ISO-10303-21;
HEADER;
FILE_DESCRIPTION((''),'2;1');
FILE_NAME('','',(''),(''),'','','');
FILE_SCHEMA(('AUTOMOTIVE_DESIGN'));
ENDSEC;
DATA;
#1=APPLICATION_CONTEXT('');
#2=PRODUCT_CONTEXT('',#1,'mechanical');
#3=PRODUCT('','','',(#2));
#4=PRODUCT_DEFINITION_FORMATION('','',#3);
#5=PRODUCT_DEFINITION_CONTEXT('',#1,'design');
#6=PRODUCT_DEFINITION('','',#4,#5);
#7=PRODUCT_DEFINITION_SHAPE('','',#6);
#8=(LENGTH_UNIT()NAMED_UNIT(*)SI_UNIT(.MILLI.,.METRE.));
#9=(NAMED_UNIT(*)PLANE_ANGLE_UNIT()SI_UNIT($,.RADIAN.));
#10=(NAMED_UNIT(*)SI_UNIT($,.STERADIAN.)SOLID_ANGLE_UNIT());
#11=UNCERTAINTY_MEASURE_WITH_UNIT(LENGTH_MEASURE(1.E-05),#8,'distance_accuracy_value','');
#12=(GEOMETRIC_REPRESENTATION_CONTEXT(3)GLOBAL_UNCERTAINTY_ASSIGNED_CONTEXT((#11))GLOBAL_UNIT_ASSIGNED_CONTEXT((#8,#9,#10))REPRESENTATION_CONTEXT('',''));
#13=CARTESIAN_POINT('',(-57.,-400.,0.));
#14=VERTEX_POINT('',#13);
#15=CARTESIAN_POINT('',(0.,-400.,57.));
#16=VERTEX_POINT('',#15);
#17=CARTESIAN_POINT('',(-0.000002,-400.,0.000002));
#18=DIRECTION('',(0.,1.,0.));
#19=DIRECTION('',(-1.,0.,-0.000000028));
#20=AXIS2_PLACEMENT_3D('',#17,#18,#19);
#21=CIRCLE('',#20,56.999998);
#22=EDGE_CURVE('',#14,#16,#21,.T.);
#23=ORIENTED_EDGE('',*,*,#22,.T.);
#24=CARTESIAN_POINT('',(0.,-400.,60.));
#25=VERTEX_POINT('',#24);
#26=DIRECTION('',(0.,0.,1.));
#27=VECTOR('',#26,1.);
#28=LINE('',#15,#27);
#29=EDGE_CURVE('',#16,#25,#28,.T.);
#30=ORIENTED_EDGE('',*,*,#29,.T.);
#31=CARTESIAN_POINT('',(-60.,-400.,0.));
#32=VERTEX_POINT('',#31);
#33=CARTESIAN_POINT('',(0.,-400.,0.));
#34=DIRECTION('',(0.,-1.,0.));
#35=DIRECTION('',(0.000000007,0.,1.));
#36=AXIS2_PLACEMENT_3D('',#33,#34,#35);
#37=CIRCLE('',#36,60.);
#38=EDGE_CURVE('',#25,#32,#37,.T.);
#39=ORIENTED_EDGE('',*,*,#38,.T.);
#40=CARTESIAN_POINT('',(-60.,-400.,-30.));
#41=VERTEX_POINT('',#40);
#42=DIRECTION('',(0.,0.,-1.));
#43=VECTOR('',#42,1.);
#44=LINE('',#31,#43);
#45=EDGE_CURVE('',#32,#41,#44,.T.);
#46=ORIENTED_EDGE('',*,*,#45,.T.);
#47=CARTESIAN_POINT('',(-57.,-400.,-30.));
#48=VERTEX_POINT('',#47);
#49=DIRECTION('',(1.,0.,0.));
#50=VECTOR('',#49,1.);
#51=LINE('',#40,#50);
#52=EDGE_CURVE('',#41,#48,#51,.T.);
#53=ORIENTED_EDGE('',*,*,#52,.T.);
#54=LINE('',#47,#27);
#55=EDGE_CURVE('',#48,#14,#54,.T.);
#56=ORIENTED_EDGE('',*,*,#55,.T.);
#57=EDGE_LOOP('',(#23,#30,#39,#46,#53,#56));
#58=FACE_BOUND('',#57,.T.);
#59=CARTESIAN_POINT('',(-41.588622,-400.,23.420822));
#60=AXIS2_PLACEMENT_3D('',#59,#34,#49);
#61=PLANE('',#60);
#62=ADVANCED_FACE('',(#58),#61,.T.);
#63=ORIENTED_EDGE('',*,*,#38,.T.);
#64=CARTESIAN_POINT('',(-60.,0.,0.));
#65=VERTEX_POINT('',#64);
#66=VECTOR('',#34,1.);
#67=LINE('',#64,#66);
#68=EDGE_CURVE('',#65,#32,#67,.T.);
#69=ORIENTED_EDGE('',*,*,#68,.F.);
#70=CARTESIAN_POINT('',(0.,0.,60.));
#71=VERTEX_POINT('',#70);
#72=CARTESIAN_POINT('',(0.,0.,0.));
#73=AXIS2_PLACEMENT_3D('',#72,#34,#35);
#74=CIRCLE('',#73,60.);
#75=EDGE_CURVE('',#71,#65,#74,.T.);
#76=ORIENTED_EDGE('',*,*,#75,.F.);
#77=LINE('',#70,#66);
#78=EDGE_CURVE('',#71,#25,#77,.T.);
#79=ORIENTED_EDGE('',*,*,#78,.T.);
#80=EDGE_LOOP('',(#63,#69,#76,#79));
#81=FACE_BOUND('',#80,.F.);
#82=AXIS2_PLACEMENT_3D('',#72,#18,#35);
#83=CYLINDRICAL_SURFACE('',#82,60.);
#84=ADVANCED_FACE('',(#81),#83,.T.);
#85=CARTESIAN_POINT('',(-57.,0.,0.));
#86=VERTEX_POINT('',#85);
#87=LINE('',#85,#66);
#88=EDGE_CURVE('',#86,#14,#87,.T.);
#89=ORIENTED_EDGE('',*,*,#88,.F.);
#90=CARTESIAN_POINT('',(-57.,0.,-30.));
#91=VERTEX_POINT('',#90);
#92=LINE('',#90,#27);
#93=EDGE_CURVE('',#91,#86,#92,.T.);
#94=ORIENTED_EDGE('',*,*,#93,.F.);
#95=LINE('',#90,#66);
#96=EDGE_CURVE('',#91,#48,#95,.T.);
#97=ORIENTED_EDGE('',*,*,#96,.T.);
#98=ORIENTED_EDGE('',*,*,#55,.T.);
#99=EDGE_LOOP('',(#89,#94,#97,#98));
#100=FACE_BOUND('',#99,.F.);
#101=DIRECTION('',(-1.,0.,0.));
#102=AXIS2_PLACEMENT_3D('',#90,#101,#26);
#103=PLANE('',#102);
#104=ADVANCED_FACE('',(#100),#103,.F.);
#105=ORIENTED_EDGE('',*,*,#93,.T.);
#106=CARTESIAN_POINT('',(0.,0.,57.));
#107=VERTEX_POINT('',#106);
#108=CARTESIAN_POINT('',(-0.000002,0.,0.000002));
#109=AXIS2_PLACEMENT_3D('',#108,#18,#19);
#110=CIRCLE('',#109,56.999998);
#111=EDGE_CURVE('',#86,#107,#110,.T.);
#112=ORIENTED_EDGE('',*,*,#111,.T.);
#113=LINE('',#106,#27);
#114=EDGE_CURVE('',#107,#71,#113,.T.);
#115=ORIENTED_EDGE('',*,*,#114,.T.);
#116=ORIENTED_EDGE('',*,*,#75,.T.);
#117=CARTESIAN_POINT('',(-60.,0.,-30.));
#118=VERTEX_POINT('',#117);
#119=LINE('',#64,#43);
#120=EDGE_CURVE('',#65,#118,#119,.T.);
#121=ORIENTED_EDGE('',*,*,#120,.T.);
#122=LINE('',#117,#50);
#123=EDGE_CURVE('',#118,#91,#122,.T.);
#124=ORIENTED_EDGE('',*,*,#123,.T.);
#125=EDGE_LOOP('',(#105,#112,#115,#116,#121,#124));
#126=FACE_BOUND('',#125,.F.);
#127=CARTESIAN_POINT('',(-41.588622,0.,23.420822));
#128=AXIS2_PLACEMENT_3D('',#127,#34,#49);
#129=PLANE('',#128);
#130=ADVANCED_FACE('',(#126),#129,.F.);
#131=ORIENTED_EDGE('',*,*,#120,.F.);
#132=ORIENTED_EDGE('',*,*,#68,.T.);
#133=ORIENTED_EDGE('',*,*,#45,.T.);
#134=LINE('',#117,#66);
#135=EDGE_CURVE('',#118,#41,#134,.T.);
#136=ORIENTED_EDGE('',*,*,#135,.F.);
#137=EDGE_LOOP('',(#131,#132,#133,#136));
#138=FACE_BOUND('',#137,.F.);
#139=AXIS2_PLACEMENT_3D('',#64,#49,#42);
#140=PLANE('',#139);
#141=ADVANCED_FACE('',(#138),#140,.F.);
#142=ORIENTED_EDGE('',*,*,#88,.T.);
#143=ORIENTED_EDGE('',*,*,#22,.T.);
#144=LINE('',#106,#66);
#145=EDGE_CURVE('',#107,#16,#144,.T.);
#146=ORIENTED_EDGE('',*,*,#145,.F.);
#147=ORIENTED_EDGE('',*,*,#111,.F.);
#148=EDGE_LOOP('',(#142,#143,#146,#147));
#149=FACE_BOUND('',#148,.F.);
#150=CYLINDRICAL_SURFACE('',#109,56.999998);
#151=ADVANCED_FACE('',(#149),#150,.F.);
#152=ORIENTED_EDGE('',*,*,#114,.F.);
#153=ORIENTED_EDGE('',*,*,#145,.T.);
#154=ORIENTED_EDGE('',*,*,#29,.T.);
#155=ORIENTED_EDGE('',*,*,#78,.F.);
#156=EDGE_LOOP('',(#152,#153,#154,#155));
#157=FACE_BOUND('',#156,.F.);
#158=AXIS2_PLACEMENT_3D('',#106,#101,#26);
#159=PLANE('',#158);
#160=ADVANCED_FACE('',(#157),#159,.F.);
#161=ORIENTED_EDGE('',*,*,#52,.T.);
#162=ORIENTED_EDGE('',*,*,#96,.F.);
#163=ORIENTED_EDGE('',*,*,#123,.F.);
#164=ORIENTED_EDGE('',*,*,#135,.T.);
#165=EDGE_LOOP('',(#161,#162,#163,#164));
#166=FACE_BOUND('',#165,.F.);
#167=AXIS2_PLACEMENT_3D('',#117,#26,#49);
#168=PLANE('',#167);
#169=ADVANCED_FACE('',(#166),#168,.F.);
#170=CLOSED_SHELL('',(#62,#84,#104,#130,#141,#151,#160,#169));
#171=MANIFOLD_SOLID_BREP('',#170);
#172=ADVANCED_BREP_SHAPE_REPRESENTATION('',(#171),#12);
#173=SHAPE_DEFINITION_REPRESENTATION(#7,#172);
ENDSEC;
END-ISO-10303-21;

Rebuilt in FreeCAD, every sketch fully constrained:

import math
import FreeCAD as App
import Part
import Sketcher

V = App.Vector
Q = App.Units.Quantity

doc = App.newDocument("Part")
body = doc.addObject("PartDesign::Body", "Body")

sketch1 = doc.addObject("Sketcher::SketchObject", "Sketch")
body.addObject(sketch1)
sketch1.AttachmentSupport = (doc.XZ_Plane, [""])
sketch1.MapMode = "FlatFace"
sketch1.addGeometry(Part.ArcOfCircle(Part.Circle(V(0, 0, 0), V(0, 0, 1), 60), math.radians(90), math.radians(180)), False)
sketch1.addGeometry(Part.LineSegment(V(-60, 0, 0), V(-60, -30, 0)), False)
sketch1.addGeometry(Part.LineSegment(V(-60, -30, 0), V(-57, -30, 0)), False)
sketch1.addGeometry(Part.LineSegment(V(-57, -30, 0), V(-57, 0, 0)), False)
sketch1.addGeometry(Part.ArcOfCircle(Part.Circle(V(0, 0, 0), V(0, 0, 1), 57), math.radians(90), math.radians(180)), False)
sketch1.addGeometry(Part.LineSegment(V(0, 57, 0), V(0, 60, 0)), False)
sketch1.addConstraint(Sketcher.Constraint("Tangent", 0, 2, 1, 1))
sketch1.addConstraint(Sketcher.Constraint("Coincident", 1, 2, 2, 1))
sketch1.addConstraint(Sketcher.Constraint("Coincident", 2, 2, 3, 1))
sketch1.addConstraint(Sketcher.Constraint("Tangent", 3, 2, 4, 2))
sketch1.addConstraint(Sketcher.Constraint("Coincident", 4, 1, 5, 1))
sketch1.addConstraint(Sketcher.Constraint("Coincident", 5, 2, 0, 1))
sketch1.addConstraint(Sketcher.Constraint("Vertical", 1))
sketch1.addConstraint(Sketcher.Constraint("Horizontal", 2))
sketch1.addConstraint(Sketcher.Constraint("Vertical", 3))
sketch1.addConstraint(Sketcher.Constraint("Vertical", 5))
sketch1.addConstraint(Sketcher.Constraint("Coincident", 0, 3, -1, 1))
sketch1.addConstraint(Sketcher.Constraint("Coincident", 4, 3, -1, 1))
sketch1.addConstraint(Sketcher.Constraint("PointOnObject", 4, 1, -2))
sketch1.addConstraint(Sketcher.Constraint("Radius", 0, Q("60 mm")))
sketch1.addConstraint(Sketcher.Constraint("Radius", 4, Q("56.999998 mm")))
sketch1.addConstraint(Sketcher.Constraint("DistanceY", 1, 2, 1, 1, Q("30 mm")))
pad1 = doc.addObject("PartDesign::Pad", "Pad")
body.addObject(pad1)
pad1.Profile = sketch1
pad1.Length = 400

doc.recompute()
